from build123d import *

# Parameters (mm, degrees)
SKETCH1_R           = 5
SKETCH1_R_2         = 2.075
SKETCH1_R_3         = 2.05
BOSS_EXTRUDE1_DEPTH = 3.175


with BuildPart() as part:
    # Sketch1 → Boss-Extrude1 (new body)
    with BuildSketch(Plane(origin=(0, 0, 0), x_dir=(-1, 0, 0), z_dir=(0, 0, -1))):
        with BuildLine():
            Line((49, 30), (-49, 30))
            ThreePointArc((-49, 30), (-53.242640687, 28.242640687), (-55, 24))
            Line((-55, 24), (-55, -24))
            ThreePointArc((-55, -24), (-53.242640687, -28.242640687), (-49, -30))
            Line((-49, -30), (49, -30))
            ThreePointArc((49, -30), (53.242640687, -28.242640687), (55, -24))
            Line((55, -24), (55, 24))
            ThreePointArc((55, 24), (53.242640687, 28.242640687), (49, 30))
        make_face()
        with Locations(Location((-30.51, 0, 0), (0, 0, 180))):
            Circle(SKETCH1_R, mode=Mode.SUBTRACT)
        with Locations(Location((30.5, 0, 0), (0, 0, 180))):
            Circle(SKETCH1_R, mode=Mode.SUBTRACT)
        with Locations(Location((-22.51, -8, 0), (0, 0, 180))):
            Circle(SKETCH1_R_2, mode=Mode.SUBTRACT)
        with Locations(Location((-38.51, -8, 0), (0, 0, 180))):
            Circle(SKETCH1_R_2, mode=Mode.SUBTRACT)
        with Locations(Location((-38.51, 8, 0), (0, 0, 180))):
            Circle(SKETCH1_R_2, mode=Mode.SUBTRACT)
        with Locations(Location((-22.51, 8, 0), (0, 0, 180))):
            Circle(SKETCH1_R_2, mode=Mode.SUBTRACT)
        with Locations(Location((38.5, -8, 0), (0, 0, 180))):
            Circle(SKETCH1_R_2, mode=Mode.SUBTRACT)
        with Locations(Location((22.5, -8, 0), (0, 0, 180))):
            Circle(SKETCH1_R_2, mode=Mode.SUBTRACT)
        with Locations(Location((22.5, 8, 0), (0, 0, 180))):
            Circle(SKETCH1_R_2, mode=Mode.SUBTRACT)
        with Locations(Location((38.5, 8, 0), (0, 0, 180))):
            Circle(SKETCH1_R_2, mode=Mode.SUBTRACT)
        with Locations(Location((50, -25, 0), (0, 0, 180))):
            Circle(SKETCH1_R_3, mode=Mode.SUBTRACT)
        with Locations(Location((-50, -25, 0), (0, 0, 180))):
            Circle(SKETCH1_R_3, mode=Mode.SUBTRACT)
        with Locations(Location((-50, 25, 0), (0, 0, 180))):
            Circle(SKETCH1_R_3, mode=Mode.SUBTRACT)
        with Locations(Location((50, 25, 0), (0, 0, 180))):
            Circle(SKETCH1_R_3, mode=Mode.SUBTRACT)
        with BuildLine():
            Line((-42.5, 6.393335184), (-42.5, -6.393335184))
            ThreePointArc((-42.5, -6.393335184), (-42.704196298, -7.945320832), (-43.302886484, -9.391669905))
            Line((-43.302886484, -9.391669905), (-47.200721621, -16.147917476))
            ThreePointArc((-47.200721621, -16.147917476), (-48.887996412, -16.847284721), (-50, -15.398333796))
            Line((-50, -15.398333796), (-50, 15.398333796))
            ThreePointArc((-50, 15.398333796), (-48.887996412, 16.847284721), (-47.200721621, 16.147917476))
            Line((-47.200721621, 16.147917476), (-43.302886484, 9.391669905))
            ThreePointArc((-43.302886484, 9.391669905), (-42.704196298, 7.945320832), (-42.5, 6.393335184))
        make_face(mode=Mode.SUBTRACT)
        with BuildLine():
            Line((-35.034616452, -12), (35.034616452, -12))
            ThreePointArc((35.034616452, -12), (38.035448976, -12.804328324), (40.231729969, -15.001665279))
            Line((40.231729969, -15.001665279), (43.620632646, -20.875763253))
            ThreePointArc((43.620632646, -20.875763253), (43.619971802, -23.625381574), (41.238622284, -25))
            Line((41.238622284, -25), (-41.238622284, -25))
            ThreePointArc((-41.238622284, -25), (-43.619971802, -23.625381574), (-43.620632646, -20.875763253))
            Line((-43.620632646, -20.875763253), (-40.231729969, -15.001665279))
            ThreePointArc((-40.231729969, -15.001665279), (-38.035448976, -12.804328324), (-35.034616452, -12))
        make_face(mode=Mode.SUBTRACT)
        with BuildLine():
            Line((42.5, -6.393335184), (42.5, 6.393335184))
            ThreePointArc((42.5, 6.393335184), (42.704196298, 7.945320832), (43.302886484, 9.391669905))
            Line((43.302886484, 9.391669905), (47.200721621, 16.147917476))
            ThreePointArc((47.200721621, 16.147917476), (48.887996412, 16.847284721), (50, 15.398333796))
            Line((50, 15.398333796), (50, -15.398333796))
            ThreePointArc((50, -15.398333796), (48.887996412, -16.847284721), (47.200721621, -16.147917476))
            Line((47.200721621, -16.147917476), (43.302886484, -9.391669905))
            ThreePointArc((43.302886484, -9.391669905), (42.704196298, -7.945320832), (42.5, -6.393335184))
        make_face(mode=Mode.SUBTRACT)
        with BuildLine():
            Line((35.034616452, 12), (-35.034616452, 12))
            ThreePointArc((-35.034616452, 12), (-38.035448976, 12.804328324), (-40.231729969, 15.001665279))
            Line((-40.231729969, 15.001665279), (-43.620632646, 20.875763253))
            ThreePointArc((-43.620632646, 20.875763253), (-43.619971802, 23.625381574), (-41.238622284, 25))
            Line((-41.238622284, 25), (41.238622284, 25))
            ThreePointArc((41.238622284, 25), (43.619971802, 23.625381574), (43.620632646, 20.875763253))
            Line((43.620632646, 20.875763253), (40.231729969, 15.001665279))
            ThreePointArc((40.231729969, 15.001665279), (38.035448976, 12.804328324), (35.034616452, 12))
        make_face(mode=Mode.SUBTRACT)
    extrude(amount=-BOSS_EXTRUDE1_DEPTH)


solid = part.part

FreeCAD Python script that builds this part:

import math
import FreeCAD as App
import Part
import Sketcher
from FreeCAD import Vector

doc = App.newDocument("Part")
body = doc.addObject("PartDesign::Body", "Body")

# Sketch on XY plane
sketch1 = doc.addObject("Sketcher::SketchObject", "Sketch")
body.addObject(sketch1)
sketch1.AttachmentSupport = (doc.XY_Plane, [""])
sketch1.MapMode = "FlatFace"
sketch1.addGeometry(Part.LineSegment(Vector(-49, 30, 0), Vector(49, 30, 0)), False)
sketch1.addGeometry(Part.ArcOfCircle(Part.Circle(Vector(49, 24, 0), Vector(0, 0, 1), 6), math.radians(0), math.radians(90)), False)
sketch1.addGeometry(Part.LineSegment(Vector(55, 24, 0), Vector(55, -24, 0)), False)
sketch1.addGeometry(Part.ArcOfCircle(Part.Circle(Vector(49, -24, 0), Vector(0, 0, 1), 6), math.radians(-90), math.radians(0)), False)
sketch1.addGeometry(Part.LineSegment(Vector(49, -30, 0), Vector(-49, -30, 0)), False)
sketch1.addGeometry(Part.ArcOfCircle(Part.Circle(Vector(-49, -24, 0), Vector(0, 0, 1), 6), math.radians(180), math.radians(270)), False)
sketch1.addGeometry(Part.LineSegment(Vector(-55, -24, 0), Vector(-55, 24, 0)), False)
sketch1.addGeometry(Part.ArcOfCircle(Part.Circle(Vector(-49, 24, 0), Vector(0, 0, 1), 6), math.radians(90), math.radians(180)), False)
sketch1.addGeometry(Part.Circle(Vector(50, -25, 0), Vector(0, 0, 1), 2.05), False)
sketch1.addGeometry(Part.Circle(Vector(38.51, -8, 0), Vector(0, 0, 1), 2.075), False)
sketch1.addGeometry(Part.Circle(Vector(22.51, -8, 0), Vector(0, 0, 1), 2.075), False)
sketch1.addGeometry(Part.ArcOfCircle(Part.Circle(Vector(35.034616, -18, 0), Vector(0, 0, 1), 6), math.radians(29.981639), math.radians(90)), False)
sketch1.addGeometry(Part.LineSegment(Vector(35.034616, -12, 0), Vector(-35.034616, -12, 0)), False)
sketch1.addGeometry(Part.ArcOfCircle(Part.Circle(Vector(-35.034616, -18, 0), Vector(0, 0, 1), 6), math.radians(90), math.radians(150.018361)), False)
sketch1.addGeometry(Part.LineSegment(Vector(-40.23173, -15.001665, 0), Vector(-43.620633, -20.875763, 0)), False)
sketch1.addGeometry(Part.ArcOfCircle(Part.Circle(Vector(-41.238622, -22.25, 0), Vector(0, 0, 1), 2.75), math.radians(150.018361), math.radians(270)), False)
sketch1.addGeometry(Part.LineSegment(Vector(-41.238622, -25, 0), Vector(41.238622, -25, 0)), False)
sketch1.addGeometry(Part.ArcOfCircle(Part.Circle(Vector(41.238622, -22.25, 0), Vector(0, 0, 1), 2.75), math.radians(-90), math.radians(29.981639)), False)
sketch1.addGeometry(Part.LineSegment(Vector(43.620633, -20.875763, 0), Vector(40.23173, -15.001665, 0)), False)
sketch1.addGeometry(Part.Circle(Vector(-50, -25, 0), Vector(0, 0, 1), 2.05), False)
sketch1.addGeometry(Part.Circle(Vector(-22.5, -8, 0), Vector(0, 0, 1), 2.075), False)
sketch1.addGeometry(Part.Circle(Vector(-38.5, -8, 0), Vector(0, 0, 1), 2.075), False)
sketch1.addGeometry(Part.ArcOfCircle(Part.Circle(Vector(48.5, 6.393335, 0), Vector(0, 0, 1), 6), math.radians(150.018361), math.radians(180)), False)
sketch1.addGeometry(Part.LineSegment(Vector(42.5, 6.393335, 0), Vector(42.5, -6.393335, 0)), False)
sketch1.addGeometry(Part.ArcOfCircle(Part.Circle(Vector(48.5, -6.393335, 0), Vector(0, 0, 1), 6), math.radians(180), math.radians(209.981639)), False)
sketch1.addGeometry(Part.LineSegment(Vector(43.302886, -9.39167, 0), Vector(47.200722, -16.147917, 0)), False)
sketch1.addGeometry(Part.ArcOfCircle(Part.Circle(Vector(48.5, -15.398334, 0), Vector(0, 0, 1), 1.5), math.radians(-150.018361), math.radians(0)), False)
sketch1.addGeometry(Part.LineSegment(Vector(50, -15.398334, 0), Vector(50, 15.398334, 0)), False)
sketch1.addGeometry(Part.ArcOfCircle(Part.Circle(Vector(48.5, 15.398334, 0), Vector(0, 0, 1), 1.5), math.radians(0), math.radians(150.018361)), False)
sketch1.addGeometry(Part.LineSegment(Vector(47.200722, 16.147917, 0), Vector(43.302886, 9.39167, 0)), False)
sketch1.addGeometry(Part.Circle(Vector(30.51, 0, 0), Vector(0, 0, 1), 5), False)
sketch1.addGeometry(Part.Circle(Vector(38.51, 8, 0), Vector(0, 0, 1), 2.075), False)
sketch1.addGeometry(Part.Circle(Vector(22.51, 8, 0), Vector(0, 0, 1), 2.075), False)
sketch1.addGeometry(Part.Circle(Vector(50, 25, 0), Vector(0, 0, 1), 2.05), False)
sketch1.addGeometry(Part.Circle(Vector(-22.5, 8, 0), Vector(0, 0, 1), 2.075), False)
sketch1.addGeometry(Part.Circle(Vector(-30.5, 0, 0), Vector(0, 0, 1), 5), False)
sketch1.addGeometry(Part.ArcOfCircle(Part.Circle(Vector(-48.5, -6.393335, 0), Vector(0, 0, 1), 6), math.radians(-29.981639), math.radians(0)), False)
sketch1.addGeometry(Part.LineSegment(Vector(-42.5, -6.393335, 0), Vector(-42.5, 6.393335, 0)), False)
sketch1.addGeometry(Part.ArcOfCircle(Part.Circle(Vector(-48.5, 6.393335, 0), Vector(0, 0, 1), 6), math.radians(0), math.radians(29.981639)), False)
sketch1.addGeometry(Part.LineSegment(Vector(-43.302886, 9.39167, 0), Vector(-47.200722, 16.147917, 0)), False)
sketch1.addGeometry(Part.ArcOfCircle(Part.Circle(Vector(-48.5, 15.398334, 0), Vector(0, 0, 1), 1.5), math.radians(29.981639), math.radians(180)), False)
sketch1.addGeometry(Part.LineSegment(Vector(-50, 15.398334, 0), Vector(-50, -15.398334, 0)), False)
sketch1.addGeometry(Part.ArcOfCircle(Part.Circle(Vector(-48.5, -15.398334, 0), Vector(0, 0, 1), 1.5), math.radians(180), math.radians(330.018361)), False)
sketch1.addGeometry(Part.LineSegment(Vector(-47.200722, -16.147917, 0), Vector(-43.302886, -9.39167, 0)), False)
sketch1.addGeometry(Part.Circle(Vector(-38.5, 8, 0), Vector(0, 0, 1), 2.075), False)
sketch1.addGeometry(Part.ArcOfCircle(Part.Circle(Vector(-35.034616, 18, 0), Vector(0, 0, 1), 6), math.radians(-150.018361), math.radians(-90)), False)
sketch1.addGeometry(Part.LineSegment(Vector(-35.034616, 12, 0), Vector(35.034616, 12, 0)), False)
sketch1.addGeometry(Part.ArcOfCircle(Part.Circle(Vector(35.034616, 18, 0), Vector(0, 0, 1), 6), math.radians(-90), math.radians(-29.981639)), False)
sketch1.addGeometry(Part.LineSegment(Vector(40.23173, 15.001665, 0), Vector(43.620633, 20.875763, 0)), False)
sketch1.addGeometry(Part.ArcOfCircle(Part.Circle(Vector(41.238622, 22.25, 0), Vector(0, 0, 1), 2.75), math.radians(-29.981639), math.radians(90)), False)
sketch1.addGeometry(Part.LineSegment(Vector(41.238622, 25, 0), Vector(-41.238622, 25, 0)), False)
sketch1.addGeometry(Part.ArcOfCircle(Part.Circle(Vector(-41.238622, 22.25, 0), Vector(0, 0, 1), 2.75), math.radians(90), math.radians(209.981639)), False)
sketch1.addGeometry(Part.LineSegment(Vector(-43.620633, 20.875763, 0), Vector(-40.23173, 15.001665, 0)), False)
sketch1.addGeometry(Part.Circle(Vector(-50, 25, 0), Vector(0, 0, 1), 2.05), False)
sketch1.addConstraint(Sketcher.Constraint("Tangent", 0, 2, 1, 2))
sketch1.addConstraint(Sketcher.Constraint("Tangent", 1, 1, 2, 1))
sketch1.addConstraint(Sketcher.Constraint("Tangent", 2, 2, 3, 2))
sketch1.addConstraint(Sketcher.Constraint("Tangent", 3, 1, 4, 1))
sketch1.addConstraint(Sketcher.Constraint("Tangent", 4, 2, 5, 2))
sketch1.addConstraint(Sketcher.Constraint("Tangent", 5, 1, 6, 1))
sketch1.addConstraint(Sketcher.Constraint("Tangent", 6, 2, 7, 2))
sketch1.addConstraint(Sketcher.Constraint("Tangent", 7, 1, 0, 1))
sketch1.addConstraint(Sketcher.Constraint("Tangent", 11, 2, 12, 1))
sketch1.addConstraint(Sketcher.Constraint("Tangent", 12, 2, 13, 1))
sketch1.addConstraint(Sketcher.Constraint("Tangent", 13, 2, 14, 1))
sketch1.addConstraint(Sketcher.Constraint("Tangent", 14, 2, 15, 1))
sketch1.addConstraint(Sketcher.Constraint("Tangent", 15, 2, 16, 1))
sketch1.addConstraint(Sketcher.Constraint("Tangent", 16, 2, 17, 1))
sketch1.addConstraint(Sketcher.Constraint("Tangent", 17, 2, 18, 1))
sketch1.addConstraint(Sketcher.Constraint("Tangent", 18, 2, 11, 1))
sketch1.addConstraint(Sketcher.Constraint("Tangent", 22, 2, 23, 1))
sketch1.addConstraint(Sketcher.Constraint("Tangent", 23, 2, 24, 1))
sketch1.addConstraint(Sketcher.Constraint("Tangent", 24, 2, 25, 1))
sketch1.addConstraint(Sketcher.Constraint("Tangent", 25, 2, 26, 1))
sketch1.addConstraint(Sketcher.Constraint("Tangent", 26, 2, 27, 1))
sketch1.addConstraint(Sketcher.Constraint("Tangent", 27, 2, 28, 1))
sketch1.addConstraint(Sketcher.Constraint("Tangent", 28, 2, 29, 1))
sketch1.addConstraint(Sketcher.Constraint("Tangent", 29, 2, 22, 1))
sketch1.addConstraint(Sketcher.Constraint("Tangent", 36, 2, 37, 1))
sketch1.addConstraint(Sketcher.Constraint("Tangent", 37, 2, 38, 1))
sketch1.addConstraint(Sketcher.Constraint("Tangent", 38, 2, 39, 1))
sketch1.addConstraint(Sketcher.Constraint("Tangent", 39, 2, 40, 1))
sketch1.addConstraint(Sketcher.Constraint("Tangent", 40, 2, 41, 1))
sketch1.addConstraint(Sketcher.Constraint("Tangent", 41, 2, 42, 1))
sketch1.addConstraint(Sketcher.Constraint("Tangent", 42, 2, 43, 1))
sketch1.addConstraint(Sketcher.Constraint("Tangent", 43, 2, 36, 1))
sketch1.addConstraint(Sketcher.Constraint("Tangent", 45, 2, 46, 1))
sketch1.addConstraint(Sketcher.Constraint("Tangent", 46, 2, 47, 1))
sketch1.addConstraint(Sketcher.Constraint("Tangent", 47, 2, 48, 1))
sketch1.addConstraint(Sketcher.Constraint("Tangent", 48, 2, 49, 1))
sketch1.addConstraint(Sketcher.Constraint("Tangent", 49, 2, 50, 1))
sketch1.addConstraint(Sketcher.Constraint("Tangent", 50, 2, 51, 1))
sketch1.addConstraint(Sketcher.Constraint("Tangent", 51, 2, 52, 1))
sketch1.addConstraint(Sketcher.Constraint("Tangent", 52, 2, 45, 1))
sketch1.addConstraint(Sketcher.Constraint("Horizontal", 0))
sketch1.addConstraint(Sketcher.Constraint("Vertical", 2))
sketch1.addConstraint(Sketcher.Constraint("Horizontal", 4))
sketch1.addConstraint(Sketcher.Constraint("Vertical", 6))
sketch1.addConstraint(Sketcher.Constraint("Horizontal", 12))
sketch1.addConstraint(Sketcher.Constraint("Horizontal", 16))
sketch1.addConstraint(Sketcher.Constraint("Vertical", 23))
sketch1.addConstraint(Sketcher.Constraint("Vertical", 27))
sketch1.addConstraint(Sketcher.Constraint("Vertical", 37))
sketch1.addConstraint(Sketcher.Constraint("Vertical", 41))
sketch1.addConstraint(Sketcher.Constraint("Horizontal", 46))
sketch1.addConstraint(Sketcher.Constraint("Horizontal", 50))
sketch1.addConstraint(Sketcher.Constraint("Equal", 1, 3))
sketch1.addConstraint(Sketcher.Constraint("Equal", 3, 5))
sketch1.addConstraint(Sketcher.Constraint("Equal", 5, 7))
sketch1.addConstraint(Sketcher.Constraint("Equal", 9, 10))
sketch1.addConstraint(Sketcher.Constraint("Equal", 7, 11))
sketch1.addConstraint(Sketcher.Constraint("Equal", 11, 13))
sketch1.addConstraint(Sketcher.Constraint("Equal", 15, 17))
sketch1.addConstraint(Sketcher.Constraint("Equal", 8, 19))
sketch1.addConstraint(Sketcher.Constraint("Equal", 10, 20))
sketch1.addConstraint(Sketcher.Constraint("Equal", 20, 21))
sketch1.addConstraint(Sketcher.Constraint("Equal", 13, 22))
sketch1.addConstraint(Sketcher.Constraint("Equal", 22, 24))
sketch1.addConstraint(Sketcher.Constraint("Equal", 26, 28))
sketch1.addConstraint(Sketcher.Constraint("Equal", 21, 31))
sketch1.addConstraint(Sketcher.Constraint("Equal", 31, 32))
sketch1.addConstraint(Sketcher.Constraint("Equal", 19, 33))
sketch1.addConstraint(Sketcher.Constraint("Equal", 32, 34))
sketch1.addConstraint(Sketcher.Constraint("Equal", 30, 35))
sketch1.addConstraint(Sketcher.Constraint("Equal", 24, 36))
sketch1.addConstraint(Sketcher.Constraint("Equal", 36, 38))
sketch1.addConstraint(Sketcher.Constraint("Equal", 28, 40))
sketch1.addConstraint(Sketcher.Constraint("Equal", 40, 42))
sketch1.addConstraint(Sketcher.Constraint("Equal", 34, 44))
sketch1.addConstraint(Sketcher.Constraint("Equal", 38, 45))
sketch1.addConstraint(Sketcher.Constraint("Equal", 45, 47))
sketch1.addConstraint(Sketcher.Constraint("Equal", 17, 49))
sketch1.addConstraint(Sketcher.Constraint("Equal", 49, 51))
sketch1.addConstraint(Sketcher.Constraint("Equal", 33, 53))
sketch1.addConstraint(Sketcher.Constraint("Symmetric", 1, 3, 5, 3, -1, 1))
sketch1.addConstraint(Sketcher.Constraint("Symmetric", 19, 3, 33, 3, -1, 1))
sketch1.addConstraint(Sketcher.Constraint("Symmetric", 22, 3, 36, 3, -1, 1))
sketch1.addConstraint(Sketcher.Constraint("Symmetric", 26, 3, 40, 3, -1, 1))
sketch1.addConstraint(Sketcher.Constraint("Symmetric", 11, 3, 45, 3, -1, 1))
sketch1.addConstraint(Sketcher.Constraint("Symmetric", 15, 3, 49, 3, -1, 1))
sketch1.addConstraint(Sketcher.Constraint("Symmetric", 8, 3, 53, 3, -1, 1))
sketch1.addConstraint(Sketcher.Constraint("Symmetric", 8, 3, 19, 3, -2))
sketch1.addConstraint(Sketcher.Constraint("Symmetric", 14, 2, 17, 2, -2))
sketch1.addConstraint(Sketcher.Constraint("Symmetric", 29, 2, 38, 2, -2))
sketch1.addConstraint(Sketcher.Constraint("Symmetric", 25, 2, 42, 2, -2))
sketch1.addConstraint(Sketcher.Constraint("Symmetric", 48, 2, 51, 2, -2))
sketch1.addConstraint(Sketcher.Constraint("Symmetric", 9, 3, 31, 3, -1))
sketch1.addConstraint(Sketcher.Constraint("Symmetric", 10, 3, 32, 3, -1))
sketch1.addConstraint(Sketcher.Constraint("Symmetric", 20, 3, 34, 3, -1))
sketch1.addConstraint(Sketcher.Constraint("Symmetric", 21, 3, 44, 3, -1))
sketch1.addConstraint(Sketcher.Constraint("PointOnObject", 30, 3, -1))
sketch1.addConstraint(Sketcher.Constraint("PointOnObject", 35, 3, -1))
sketch1.addConstraint(Sketcher.Constraint("Parallel", 18, 25))
sketch1.addConstraint(Sketcher.Constraint("Horizontal", 9, 3, 10, 3))
sketch1.addConstraint(Sketcher.Constraint("Horizontal", 10, 3, 20, 3))
sketch1.addConstraint(Sketcher.Constraint("Horizontal", 20, 3, 21, 3))
sketch1.addConstraint(Sketcher.Constraint("Horizontal", 19, 3, 15, 2))
sketch1.addConstraint(Sketcher.Constraint("Vertical", 24, 3, 26, 3))
sketch1.addConstraint(Sketcher.Constraint("Vertical", 33, 3, 26, 2))
sketch1.addConstraint(Sketcher.Constraint("Diameter", 30, 10.0))
sketch1.addConstraint(Sketcher.Constraint("Radius", 1, 6.0))
sketch1.addConstraint(Sketcher.Constraint("Diameter", 8, 4.1))
sketch1.addConstraint(Sketcher.Constraint("Radius", 26, 1.5))
sketch1.addConstraint(Sketcher.Constraint("Diameter", 9, 4.15))
sketch1.addConstraint(Sketcher.Constraint("DistanceX", 0, 1, 0, 2, 98.0))
sketch1.addConstraint(Sketcher.Constraint("DistanceY", 2, 2, 2, 1, 48.0))
sketch1.addConstraint(Sketcher.Constraint("Radius", 15, 2.75))
sketch1.addConstraint(Sketcher.Constraint("DistanceX", -1, 1, 8, 3, 50.0))
sketch1.addConstraint(Sketcher.Constraint("DistanceY", 8, 3, -1, 1, 25.0))
sketch1.addConstraint(Sketcher.Constraint("DistanceY", 9, 3, -1, 1, 8.0))
sketch1.addConstraint(Sketcher.Constraint("DistanceY", 11, 3, -1, 1, 18.0))
sketch1.addConstraint(Sketcher.Constraint("Distance", 25, 7.8))
sketch1.addConstraint(Sketcher.Constraint("DistanceX", 20, 3, -1, 1, 22.5))
sketch1.addConstraint(Sketcher.Constraint("DistanceX", 21, 3, -1, 1, 38.5))
sketch1.addConstraint(Sketcher.Constraint("DistanceX", 35, 3, -1, 1, 30.5))
sketch1.addConstraint(Sketcher.Constraint("DistanceX", -1, 1, 9, 3, 38.51))
sketch1.addConstraint(Sketcher.Constraint("DistanceX", -1, 1, 10, 3, 22.51))
sketch1.addConstraint(Sketcher.Constraint("DistanceX", -1, 1, 30, 3, 30.51))
sketch1.addConstraint(Sketcher.Constraint("DistanceY", 23, 2, 23, 1, 12.78667))
sketch1.addConstraint(Sketcher.Constraint("DistanceX", 12, 2, 12, 1, 70.069233))
pad1 = doc.addObject("PartDesign::Pad", "Pad")
body.addObject(pad1)
pad1.Profile = sketch1
pad1.Length = 3.175

doc.recompute()
